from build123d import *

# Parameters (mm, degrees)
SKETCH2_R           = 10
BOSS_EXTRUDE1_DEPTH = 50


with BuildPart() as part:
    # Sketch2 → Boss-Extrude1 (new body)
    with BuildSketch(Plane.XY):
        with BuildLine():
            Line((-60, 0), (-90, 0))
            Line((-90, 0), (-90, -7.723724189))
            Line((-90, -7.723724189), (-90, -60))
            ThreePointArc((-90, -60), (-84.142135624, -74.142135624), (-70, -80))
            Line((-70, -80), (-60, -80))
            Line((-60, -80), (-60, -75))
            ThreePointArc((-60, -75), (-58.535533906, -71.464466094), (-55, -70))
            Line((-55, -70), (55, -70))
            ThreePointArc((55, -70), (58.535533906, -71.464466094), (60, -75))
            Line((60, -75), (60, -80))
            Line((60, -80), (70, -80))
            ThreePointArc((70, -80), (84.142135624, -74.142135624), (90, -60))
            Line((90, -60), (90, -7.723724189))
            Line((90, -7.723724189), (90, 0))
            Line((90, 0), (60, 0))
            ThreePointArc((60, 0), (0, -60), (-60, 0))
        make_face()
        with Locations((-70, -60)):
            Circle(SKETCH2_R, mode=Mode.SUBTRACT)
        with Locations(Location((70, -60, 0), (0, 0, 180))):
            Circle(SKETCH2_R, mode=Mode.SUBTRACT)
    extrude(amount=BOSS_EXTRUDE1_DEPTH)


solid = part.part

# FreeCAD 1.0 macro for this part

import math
import FreeCAD as App
import Part
import Sketcher
from FreeCAD import Vector

doc = App.newDocument("Part")
body = doc.addObject("PartDesign::Body", "Body")

sketch1 = body.newObject("Sketcher::SketchObject", "Sketch")
sketch1.AttachmentSupport = (doc.getObject("XY_Plane"), [""])
sketch1.MapMode = "FlatFace"
sketch1.addGeometry([
    Part.LineSegment(Vector(-60, 0, 0), Vector(-90, 0, 0)),
    Part.LineSegment(Vector(-90, 0, 0), Vector(-90, -60, 0)),
    Part.ArcOfCircle(Part.Circle(Vector(-70, -60, 0), Vector(0, 0, 1), 20), math.radians(180), math.radians(270)),
    Part.LineSegment(Vector(-70, -80, 0), Vector(-60, -80, 0)),
    Part.LineSegment(Vector(-60, -80, 0), Vector(-60, -75, 0)),
    Part.ArcOfCircle(Part.Circle(Vector(-55, -75, 0), Vector(0, 0, 1), 5), math.radians(90), math.radians(180)),
    Part.LineSegment(Vector(-55, -70, 0), Vector(55, -70, 0)),
    Part.ArcOfCircle(Part.Circle(Vector(55, -75, 0), Vector(0, 0, 1), 5), math.radians(0), math.radians(90)),
    Part.LineSegment(Vector(60, -75, 0), Vector(60, -80, 0)),
    Part.LineSegment(Vector(60, -80, 0), Vector(70, -80, 0)),
    Part.ArcOfCircle(Part.Circle(Vector(70, -60, 0), Vector(0, 0, 1), 20), math.radians(-90), math.radians(0)),
    Part.LineSegment(Vector(90, -60, 0), Vector(90, 0, 0)),
    Part.LineSegment(Vector(90, 0, 0), Vector(60, 0, 0)),
    Part.ArcOfCircle(Part.Circle(Vector(0, 0, 0), Vector(0, 0, 1), 60), math.radians(180), math.radians(360)),
    Part.Circle(Vector(-70, -60, 0), Vector(0, 0, 1), 10),
    Part.Circle(Vector(70, -60, 0), Vector(0, 0, 1), 10),
], False)
sketch1.addConstraint([
    Sketcher.Constraint("Coincident", 0, 2, 1, 1),
    Sketcher.Constraint("Tangent", 1, 2, 2, 1),
    Sketcher.Constraint("Tangent", 2, 2, 3, 1),
    Sketcher.Constraint("Coincident", 3, 2, 4, 1),
    Sketcher.Constraint("Tangent", 4, 2, 5, 2),
    Sketcher.Constraint("Tangent", 5, 1, 6, 1),
    Sketcher.Constraint("Tangent", 6, 2, 7, 2),
    Sketcher.Constraint("Tangent", 7, 1, 8, 1),
    Sketcher.Constraint("Coincident", 8, 2, 9, 1),
    Sketcher.Constraint("Tangent", 9, 2, 10, 1),
    Sketcher.Constraint("Tangent", 10, 2, 11, 1),
    Sketcher.Constraint("Coincident", 11, 2, 12, 1),
    Sketcher.Constraint("Coincident", 12, 2, 13, 2),
    Sketcher.Constraint("Coincident", 13, 1, 0, 1),
    Sketcher.Constraint("Horizontal", 0),
    Sketcher.Constraint("Vertical", 1),
    Sketcher.Constraint("Horizontal", 3),
    Sketcher.Constraint("Vertical", 4),
    Sketcher.Constraint("Horizontal", 6),
    Sketcher.Constraint("Vertical", 8),
    Sketcher.Constraint("Horizontal", 9),
    Sketcher.Constraint("Vertical", 11),
    Sketcher.Constraint("Horizontal", 12),
    Sketcher.Constraint("Coincident", 13, 3, -1, 1),
    Sketcher.Constraint("Coincident", 14, 3, 2, 3),
    Sketcher.Constraint("Coincident", 15, 3, 10, 3),
    Sketcher.Constraint("Equal", 5, 7),
    Sketcher.Constraint("Equal", 2, 10),
    Sketcher.Constraint("Equal", 14, 15),
    Sketcher.Constraint("Symmetric", 0, 2, 11, 2, -1, 1),
    Sketcher.Constraint("Symmetric", 3, 2, 8, 2, -2),
    Sketcher.Constraint("PointOnObject", 0, 2, -1),
    Sketcher.Constraint("Vertical", 8, 2, 12, 2),
    Sketcher.Constraint("Diameter", 14, 20.0),
    Sketcher.Constraint("Radius", 2, 20.0),
    Sketcher.Constraint("Radius", 5, 5.0),
    Sketcher.Constraint("Radius", 13, 60.0),
    Sketcher.Constraint("DistanceX", 0, 2, 0, 1, 30.0),
    Sketcher.Constraint("DistanceY", 1, 2, 1, 1, 60.0),
    Sketcher.Constraint("DistanceY", 4, 1, 4, 2, 5.0),
])
pad1 = body.newObject("PartDesign::Pad", "Pad")
pad1.Profile = sketch1
pad1.Length = 50

doc.recompute()
